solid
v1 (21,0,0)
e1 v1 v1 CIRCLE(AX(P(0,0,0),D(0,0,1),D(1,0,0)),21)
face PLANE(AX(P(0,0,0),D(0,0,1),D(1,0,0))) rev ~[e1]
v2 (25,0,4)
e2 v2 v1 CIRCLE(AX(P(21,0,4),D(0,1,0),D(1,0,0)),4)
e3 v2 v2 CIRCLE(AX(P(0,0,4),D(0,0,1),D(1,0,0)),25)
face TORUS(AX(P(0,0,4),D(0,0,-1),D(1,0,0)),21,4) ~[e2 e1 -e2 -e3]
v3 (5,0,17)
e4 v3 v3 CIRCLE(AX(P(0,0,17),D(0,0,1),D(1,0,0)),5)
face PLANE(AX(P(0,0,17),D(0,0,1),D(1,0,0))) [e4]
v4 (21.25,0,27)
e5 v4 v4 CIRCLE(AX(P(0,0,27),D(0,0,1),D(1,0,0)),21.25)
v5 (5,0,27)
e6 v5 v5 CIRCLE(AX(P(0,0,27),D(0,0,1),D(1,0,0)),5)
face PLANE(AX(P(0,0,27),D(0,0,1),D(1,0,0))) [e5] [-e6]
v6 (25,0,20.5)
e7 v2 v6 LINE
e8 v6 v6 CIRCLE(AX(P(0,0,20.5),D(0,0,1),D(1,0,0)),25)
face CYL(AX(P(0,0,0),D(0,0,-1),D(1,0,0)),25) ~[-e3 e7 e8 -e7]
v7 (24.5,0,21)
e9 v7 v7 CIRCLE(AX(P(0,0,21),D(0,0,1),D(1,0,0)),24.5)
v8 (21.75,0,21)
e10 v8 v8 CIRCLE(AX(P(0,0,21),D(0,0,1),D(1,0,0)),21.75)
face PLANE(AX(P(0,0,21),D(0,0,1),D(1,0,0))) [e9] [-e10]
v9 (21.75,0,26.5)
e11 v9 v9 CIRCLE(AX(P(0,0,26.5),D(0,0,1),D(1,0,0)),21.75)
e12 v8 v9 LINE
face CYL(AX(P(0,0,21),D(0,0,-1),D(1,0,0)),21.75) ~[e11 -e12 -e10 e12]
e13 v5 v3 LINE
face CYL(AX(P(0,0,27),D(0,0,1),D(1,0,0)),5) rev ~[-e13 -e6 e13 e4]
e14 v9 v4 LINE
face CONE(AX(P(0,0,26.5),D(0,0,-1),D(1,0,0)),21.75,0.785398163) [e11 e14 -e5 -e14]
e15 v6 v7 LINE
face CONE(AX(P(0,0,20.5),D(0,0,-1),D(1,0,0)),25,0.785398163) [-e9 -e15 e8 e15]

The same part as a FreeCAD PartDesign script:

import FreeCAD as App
import Part
import Sketcher
from FreeCAD import Vector


def edges_at(feature, points):
    """Names of the edges that pass closest to the given points."""
    edges = feature.Shape.Edges
    near = lambda p: min(range(len(edges)), key=lambda i: edges[i].distToShape(Part.Vertex(*p))[0])
    return sorted({f"Edge{near(p) + 1}" for p in points})

doc = App.newDocument("Part")
body = doc.addObject("PartDesign::Body", "Body")

sketch1 = doc.addObject("Sketcher::SketchObject", "Sketch")
body.addObject(sketch1)
sketch1.AttachmentSupport = (doc.XY_Plane, [""])
sketch1.MapMode = "FlatFace"
sketch1.addGeometry(Part.Circle(Vector(0, 0, 0), Vector(0, 0, 1), 25), False)
sketch1.addConstraint([
    Sketcher.Constraint("Coincident", 0, 3, -1, 1),
    Sketcher.Constraint("Diameter", 0, 50.0),
])
pad1 = doc.addObject("PartDesign::Pad", "Pad")
body.addObject(pad1)
pad1.Profile = sketch1
pad1.Length = 21

sketch2 = doc.addObject("Sketcher::SketchObject", "Sketch001")
body.addObject(sketch2)
sketch2.AttachmentSupport = (doc.XY_Plane, [""])
sketch2.MapMode = "FlatFace"
sketch2.AttachmentOffset = App.Placement(Vector(0, 0, 21), App.Rotation())
sketch2.addGeometry(Part.Circle(Vector(0, 0, 0), Vector(0, 0, 1), 22), False)
sketch2.addConstraint([
    Sketcher.Constraint("Coincident", 0, 3, -1, 1),
    Sketcher.Constraint("Diameter", 0, 43.5),
])
pad2 = doc.addObject("PartDesign::Pad", "Pad001")
body.addObject(pad2)
pad2.Profile = sketch2
pad2.Length = 6

sketch3 = doc.addObject("Sketcher::SketchObject", "Sketch002")
body.addObject(sketch3)
sketch3.AttachmentSupport = (doc.XY_Plane, [""])
sketch3.MapMode = "FlatFace"
sketch3.AttachmentOffset = App.Placement(Vector(0, 0, 27), App.Rotation())
sketch3.addGeometry(Part.Circle(Vector(0, 0, 0), Vector(0, 0, 1), 5), False)
sketch3.addConstraint([
    Sketcher.Constraint("Coincident", 0, 3, -1, 1),
    Sketcher.Constraint("Diameter", 0, 10.0),
])
pocket1 = doc.addObject("PartDesign::Pocket", "Pocket")
body.addObject(pocket1)
pocket1.Profile = sketch3
pocket1.Length = 10
doc.recompute()

chamfer = doc.addObject("PartDesign::Chamfer", "Chamfer")
body.addObject(chamfer)
chamfer.Base = (pocket1, edges_at(pocket1, [(-21.75, 0, 27), (-25, 0, 21)]))
chamfer.Size = 0.5
doc.recompute()

fillet = doc.addObject("PartDesign::Fillet", "Fillet")
body.addObject(fillet)
fillet.Base = (chamfer, edges_at(chamfer, [(-25, 0, 0)]))
fillet.Radius = 4

doc.recompute()
